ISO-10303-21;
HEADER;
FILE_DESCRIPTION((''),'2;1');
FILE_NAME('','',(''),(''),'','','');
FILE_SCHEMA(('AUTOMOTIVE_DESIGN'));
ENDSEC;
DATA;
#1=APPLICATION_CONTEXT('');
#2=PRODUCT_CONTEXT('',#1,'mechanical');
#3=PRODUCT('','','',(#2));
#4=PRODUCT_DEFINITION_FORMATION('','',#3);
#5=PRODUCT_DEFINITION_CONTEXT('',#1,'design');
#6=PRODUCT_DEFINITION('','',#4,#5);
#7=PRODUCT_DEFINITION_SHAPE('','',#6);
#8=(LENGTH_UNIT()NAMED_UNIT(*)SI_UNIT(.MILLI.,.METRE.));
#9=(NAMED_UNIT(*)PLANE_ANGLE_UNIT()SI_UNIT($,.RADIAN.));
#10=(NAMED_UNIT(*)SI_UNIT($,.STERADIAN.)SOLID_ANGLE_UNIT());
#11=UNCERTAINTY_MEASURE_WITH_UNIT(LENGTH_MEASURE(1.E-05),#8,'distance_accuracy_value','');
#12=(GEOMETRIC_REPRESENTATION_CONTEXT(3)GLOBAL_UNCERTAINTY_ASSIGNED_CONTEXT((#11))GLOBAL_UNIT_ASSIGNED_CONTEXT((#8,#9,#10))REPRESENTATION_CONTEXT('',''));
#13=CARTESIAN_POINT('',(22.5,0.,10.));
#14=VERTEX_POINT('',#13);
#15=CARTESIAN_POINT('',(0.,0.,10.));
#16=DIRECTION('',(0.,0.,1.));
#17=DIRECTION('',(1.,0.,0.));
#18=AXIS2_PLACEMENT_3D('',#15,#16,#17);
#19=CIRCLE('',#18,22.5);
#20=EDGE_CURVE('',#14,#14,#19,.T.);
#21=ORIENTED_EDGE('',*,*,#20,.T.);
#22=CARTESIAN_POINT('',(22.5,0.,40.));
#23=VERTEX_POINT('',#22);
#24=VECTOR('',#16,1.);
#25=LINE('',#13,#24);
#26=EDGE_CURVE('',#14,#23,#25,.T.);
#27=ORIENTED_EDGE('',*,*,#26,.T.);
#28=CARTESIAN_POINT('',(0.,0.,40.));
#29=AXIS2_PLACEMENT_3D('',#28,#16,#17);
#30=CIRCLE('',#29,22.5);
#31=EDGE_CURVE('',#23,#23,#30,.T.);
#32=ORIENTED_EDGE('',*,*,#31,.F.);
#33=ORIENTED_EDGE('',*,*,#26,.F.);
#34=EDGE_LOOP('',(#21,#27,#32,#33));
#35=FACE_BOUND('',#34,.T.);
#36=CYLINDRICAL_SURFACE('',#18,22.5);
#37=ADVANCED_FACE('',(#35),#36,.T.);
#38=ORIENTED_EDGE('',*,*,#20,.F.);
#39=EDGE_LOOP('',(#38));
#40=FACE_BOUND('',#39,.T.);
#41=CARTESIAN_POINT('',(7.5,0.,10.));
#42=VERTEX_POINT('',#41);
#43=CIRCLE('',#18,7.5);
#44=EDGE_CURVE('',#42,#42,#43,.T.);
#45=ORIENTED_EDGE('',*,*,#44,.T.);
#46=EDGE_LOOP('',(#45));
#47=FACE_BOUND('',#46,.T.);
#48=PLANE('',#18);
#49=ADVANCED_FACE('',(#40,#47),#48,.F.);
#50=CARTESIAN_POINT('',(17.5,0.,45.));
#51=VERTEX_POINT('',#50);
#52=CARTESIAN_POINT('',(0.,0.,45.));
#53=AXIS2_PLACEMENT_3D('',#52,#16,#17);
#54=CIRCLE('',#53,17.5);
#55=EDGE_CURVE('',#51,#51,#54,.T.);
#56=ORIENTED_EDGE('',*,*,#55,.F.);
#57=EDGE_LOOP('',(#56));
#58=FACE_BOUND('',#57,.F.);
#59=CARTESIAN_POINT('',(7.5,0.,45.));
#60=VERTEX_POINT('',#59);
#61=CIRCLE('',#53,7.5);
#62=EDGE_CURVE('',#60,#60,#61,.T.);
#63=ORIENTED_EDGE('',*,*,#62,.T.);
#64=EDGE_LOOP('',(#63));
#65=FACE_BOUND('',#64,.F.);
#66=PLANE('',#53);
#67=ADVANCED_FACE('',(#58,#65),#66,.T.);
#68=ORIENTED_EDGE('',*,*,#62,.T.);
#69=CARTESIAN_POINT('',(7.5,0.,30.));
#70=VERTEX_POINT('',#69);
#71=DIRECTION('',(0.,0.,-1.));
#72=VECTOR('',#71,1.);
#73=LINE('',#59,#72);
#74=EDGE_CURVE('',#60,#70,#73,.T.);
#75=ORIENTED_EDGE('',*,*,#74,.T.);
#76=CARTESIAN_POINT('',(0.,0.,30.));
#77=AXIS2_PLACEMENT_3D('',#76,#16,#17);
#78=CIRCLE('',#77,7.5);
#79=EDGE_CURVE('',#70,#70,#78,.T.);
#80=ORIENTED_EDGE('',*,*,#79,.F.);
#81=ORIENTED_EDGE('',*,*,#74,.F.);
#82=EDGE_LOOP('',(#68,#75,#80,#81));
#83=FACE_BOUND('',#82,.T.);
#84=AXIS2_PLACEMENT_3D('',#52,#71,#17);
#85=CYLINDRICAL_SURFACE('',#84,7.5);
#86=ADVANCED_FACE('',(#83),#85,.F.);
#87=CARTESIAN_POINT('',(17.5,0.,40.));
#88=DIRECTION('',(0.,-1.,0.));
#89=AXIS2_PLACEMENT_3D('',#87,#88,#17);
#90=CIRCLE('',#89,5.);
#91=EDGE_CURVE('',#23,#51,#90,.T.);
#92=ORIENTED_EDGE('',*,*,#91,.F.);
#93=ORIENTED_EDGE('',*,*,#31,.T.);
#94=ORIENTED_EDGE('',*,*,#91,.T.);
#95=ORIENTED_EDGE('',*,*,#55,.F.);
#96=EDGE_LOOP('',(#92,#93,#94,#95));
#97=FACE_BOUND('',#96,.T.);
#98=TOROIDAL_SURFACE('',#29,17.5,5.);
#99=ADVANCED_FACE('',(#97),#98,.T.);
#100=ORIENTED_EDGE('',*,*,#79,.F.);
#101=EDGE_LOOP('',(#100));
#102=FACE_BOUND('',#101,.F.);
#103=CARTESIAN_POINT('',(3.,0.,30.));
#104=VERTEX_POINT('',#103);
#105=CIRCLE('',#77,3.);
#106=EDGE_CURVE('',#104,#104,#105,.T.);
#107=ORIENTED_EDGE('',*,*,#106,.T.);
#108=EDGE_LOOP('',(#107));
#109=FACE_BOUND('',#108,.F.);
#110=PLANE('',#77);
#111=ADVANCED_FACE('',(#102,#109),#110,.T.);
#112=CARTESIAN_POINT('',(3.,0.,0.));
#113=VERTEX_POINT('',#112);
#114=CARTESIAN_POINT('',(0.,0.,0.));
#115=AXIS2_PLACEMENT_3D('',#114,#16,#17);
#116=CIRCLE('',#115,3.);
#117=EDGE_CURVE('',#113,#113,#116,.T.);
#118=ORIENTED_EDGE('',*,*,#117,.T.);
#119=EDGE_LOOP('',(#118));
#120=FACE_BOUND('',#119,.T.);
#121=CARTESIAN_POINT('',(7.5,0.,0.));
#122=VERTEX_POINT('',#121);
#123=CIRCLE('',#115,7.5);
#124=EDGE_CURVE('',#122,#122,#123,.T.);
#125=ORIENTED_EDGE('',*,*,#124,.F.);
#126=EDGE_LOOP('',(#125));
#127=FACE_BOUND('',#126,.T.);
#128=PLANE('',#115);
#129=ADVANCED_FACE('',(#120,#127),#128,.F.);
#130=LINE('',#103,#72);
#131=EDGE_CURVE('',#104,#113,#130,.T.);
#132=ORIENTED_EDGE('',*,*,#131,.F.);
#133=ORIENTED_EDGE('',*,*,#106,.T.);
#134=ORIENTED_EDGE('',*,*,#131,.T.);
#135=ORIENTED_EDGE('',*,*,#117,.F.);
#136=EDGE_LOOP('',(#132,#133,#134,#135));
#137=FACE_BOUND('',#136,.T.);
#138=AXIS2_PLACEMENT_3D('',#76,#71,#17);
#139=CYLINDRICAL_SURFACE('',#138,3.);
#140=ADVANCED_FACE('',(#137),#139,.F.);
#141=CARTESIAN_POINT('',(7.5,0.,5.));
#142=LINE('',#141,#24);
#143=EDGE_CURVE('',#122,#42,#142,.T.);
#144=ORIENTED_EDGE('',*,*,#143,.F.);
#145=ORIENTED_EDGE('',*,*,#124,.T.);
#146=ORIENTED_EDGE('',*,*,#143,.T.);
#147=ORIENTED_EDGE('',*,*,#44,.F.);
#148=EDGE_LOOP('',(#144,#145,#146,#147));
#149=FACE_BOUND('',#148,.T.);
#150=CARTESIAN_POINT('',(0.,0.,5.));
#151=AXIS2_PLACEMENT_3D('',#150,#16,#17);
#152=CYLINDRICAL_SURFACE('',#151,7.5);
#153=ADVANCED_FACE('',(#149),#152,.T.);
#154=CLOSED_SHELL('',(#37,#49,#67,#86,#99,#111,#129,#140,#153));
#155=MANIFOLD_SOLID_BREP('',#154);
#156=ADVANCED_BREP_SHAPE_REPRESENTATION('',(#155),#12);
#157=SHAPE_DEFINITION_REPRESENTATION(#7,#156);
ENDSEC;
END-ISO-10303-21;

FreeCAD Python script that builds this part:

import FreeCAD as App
import Part
import Sketcher

V = App.Vector


def edges_at(feature, points):
    """Names of the edges that pass closest to the given points."""
    edges = feature.Shape.Edges
    near = lambda p: min(range(len(edges)), key=lambda i: edges[i].distToShape(Part.Vertex(*p))[0])
    return sorted({f"Edge{near(p) + 1}" for p in points})

doc = App.newDocument("Part")
body = doc.addObject("PartDesign::Body", "Body")

sketch1 = doc.addObject("Sketcher::SketchObject", "Sketch")
body.addObject(sketch1)
sketch1.AttachmentSupport = (doc.XZ_Plane, [""])
sketch1.MapMode = "FlatFace"
sketch1.addGeometry([
    Part.LineSegment(V(7.5, 45, 0), V(7.5, 30, 0)),
    Part.LineSegment(V(7.5, 30, 0), V(3, 30, 0)),
    Part.LineSegment(V(3, 30, 0), V(3, 0, 0)),
    Part.LineSegment(V(3, 0, 0), V(7.5, 0, 0)),
    Part.LineSegment(V(7.5, 0, 0), V(7.5, 10, 0)),
    Part.LineSegment(V(7.5, 10, 0), V(22.5, 10, 0)),
    Part.LineSegment(V(22.5, 10, 0), V(22.5, 45, 0)),
    Part.LineSegment(V(22.5, 45, 0), V(7.5, 45, 0)),
], False)
sketch1.addConstraint([
    Sketcher.Constraint("Coincident", 0, 2, 1, 1),
    Sketcher.Constraint("Coincident", 1, 2, 2, 1),
    Sketcher.Constraint("Coincident", 2, 2, 3, 1),
    Sketcher.Constraint("Coincident", 3, 2, 4, 1),
    Sketcher.Constraint("Coincident", 4, 2, 5, 1),
    Sketcher.Constraint("Coincident", 5, 2, 6, 1),
    Sketcher.Constraint("Coincident", 6, 2, 7, 1),
    Sketcher.Constraint("Coincident", 7, 2, 0, 1),
    Sketcher.Constraint("Vertical", 0),
    Sketcher.Constraint("Horizontal", 1),
    Sketcher.Constraint("Vertical", 2),
    Sketcher.Constraint("Horizontal", 3),
    Sketcher.Constraint("Vertical", 4),
    Sketcher.Constraint("Horizontal", 5),
    Sketcher.Constraint("Vertical", 6),
    Sketcher.Constraint("Horizontal", 7),
    Sketcher.Constraint("PointOnObject", 2, 2, -1),
    Sketcher.Constraint("Vertical", 0, 2, 3, 2),
    Sketcher.Constraint("Equal", 7, 0),
    Sketcher.Constraint("DistanceX", 5, 1, 5, 2, 15.0),
    Sketcher.Constraint("DistanceY", 2, 2, 2, 1, 30.0),
    Sketcher.Constraint("DistanceY", 4, 1, 4, 2, 10.0),
    Sketcher.Constraint("DistanceX", 1, 2, 1, 1, 4.5),
    Sketcher.Constraint("DistanceX", -1, 1, 1, 2, 3.0),
])
revolution = doc.addObject("PartDesign::Revolution", "Revolution")
body.addObject(revolution)
revolution.Profile = sketch1
revolution.ReferenceAxis = (sketch1, ["V_Axis"])
revolution.Angle = 360
doc.recompute()

fillet = doc.addObject("PartDesign::Fillet", "Fillet")
body.addObject(fillet)
fillet.Base = (revolution, edges_at(revolution, [(-22.5, 0, 45)]))
fillet.Radius = 5

doc.recompute()
